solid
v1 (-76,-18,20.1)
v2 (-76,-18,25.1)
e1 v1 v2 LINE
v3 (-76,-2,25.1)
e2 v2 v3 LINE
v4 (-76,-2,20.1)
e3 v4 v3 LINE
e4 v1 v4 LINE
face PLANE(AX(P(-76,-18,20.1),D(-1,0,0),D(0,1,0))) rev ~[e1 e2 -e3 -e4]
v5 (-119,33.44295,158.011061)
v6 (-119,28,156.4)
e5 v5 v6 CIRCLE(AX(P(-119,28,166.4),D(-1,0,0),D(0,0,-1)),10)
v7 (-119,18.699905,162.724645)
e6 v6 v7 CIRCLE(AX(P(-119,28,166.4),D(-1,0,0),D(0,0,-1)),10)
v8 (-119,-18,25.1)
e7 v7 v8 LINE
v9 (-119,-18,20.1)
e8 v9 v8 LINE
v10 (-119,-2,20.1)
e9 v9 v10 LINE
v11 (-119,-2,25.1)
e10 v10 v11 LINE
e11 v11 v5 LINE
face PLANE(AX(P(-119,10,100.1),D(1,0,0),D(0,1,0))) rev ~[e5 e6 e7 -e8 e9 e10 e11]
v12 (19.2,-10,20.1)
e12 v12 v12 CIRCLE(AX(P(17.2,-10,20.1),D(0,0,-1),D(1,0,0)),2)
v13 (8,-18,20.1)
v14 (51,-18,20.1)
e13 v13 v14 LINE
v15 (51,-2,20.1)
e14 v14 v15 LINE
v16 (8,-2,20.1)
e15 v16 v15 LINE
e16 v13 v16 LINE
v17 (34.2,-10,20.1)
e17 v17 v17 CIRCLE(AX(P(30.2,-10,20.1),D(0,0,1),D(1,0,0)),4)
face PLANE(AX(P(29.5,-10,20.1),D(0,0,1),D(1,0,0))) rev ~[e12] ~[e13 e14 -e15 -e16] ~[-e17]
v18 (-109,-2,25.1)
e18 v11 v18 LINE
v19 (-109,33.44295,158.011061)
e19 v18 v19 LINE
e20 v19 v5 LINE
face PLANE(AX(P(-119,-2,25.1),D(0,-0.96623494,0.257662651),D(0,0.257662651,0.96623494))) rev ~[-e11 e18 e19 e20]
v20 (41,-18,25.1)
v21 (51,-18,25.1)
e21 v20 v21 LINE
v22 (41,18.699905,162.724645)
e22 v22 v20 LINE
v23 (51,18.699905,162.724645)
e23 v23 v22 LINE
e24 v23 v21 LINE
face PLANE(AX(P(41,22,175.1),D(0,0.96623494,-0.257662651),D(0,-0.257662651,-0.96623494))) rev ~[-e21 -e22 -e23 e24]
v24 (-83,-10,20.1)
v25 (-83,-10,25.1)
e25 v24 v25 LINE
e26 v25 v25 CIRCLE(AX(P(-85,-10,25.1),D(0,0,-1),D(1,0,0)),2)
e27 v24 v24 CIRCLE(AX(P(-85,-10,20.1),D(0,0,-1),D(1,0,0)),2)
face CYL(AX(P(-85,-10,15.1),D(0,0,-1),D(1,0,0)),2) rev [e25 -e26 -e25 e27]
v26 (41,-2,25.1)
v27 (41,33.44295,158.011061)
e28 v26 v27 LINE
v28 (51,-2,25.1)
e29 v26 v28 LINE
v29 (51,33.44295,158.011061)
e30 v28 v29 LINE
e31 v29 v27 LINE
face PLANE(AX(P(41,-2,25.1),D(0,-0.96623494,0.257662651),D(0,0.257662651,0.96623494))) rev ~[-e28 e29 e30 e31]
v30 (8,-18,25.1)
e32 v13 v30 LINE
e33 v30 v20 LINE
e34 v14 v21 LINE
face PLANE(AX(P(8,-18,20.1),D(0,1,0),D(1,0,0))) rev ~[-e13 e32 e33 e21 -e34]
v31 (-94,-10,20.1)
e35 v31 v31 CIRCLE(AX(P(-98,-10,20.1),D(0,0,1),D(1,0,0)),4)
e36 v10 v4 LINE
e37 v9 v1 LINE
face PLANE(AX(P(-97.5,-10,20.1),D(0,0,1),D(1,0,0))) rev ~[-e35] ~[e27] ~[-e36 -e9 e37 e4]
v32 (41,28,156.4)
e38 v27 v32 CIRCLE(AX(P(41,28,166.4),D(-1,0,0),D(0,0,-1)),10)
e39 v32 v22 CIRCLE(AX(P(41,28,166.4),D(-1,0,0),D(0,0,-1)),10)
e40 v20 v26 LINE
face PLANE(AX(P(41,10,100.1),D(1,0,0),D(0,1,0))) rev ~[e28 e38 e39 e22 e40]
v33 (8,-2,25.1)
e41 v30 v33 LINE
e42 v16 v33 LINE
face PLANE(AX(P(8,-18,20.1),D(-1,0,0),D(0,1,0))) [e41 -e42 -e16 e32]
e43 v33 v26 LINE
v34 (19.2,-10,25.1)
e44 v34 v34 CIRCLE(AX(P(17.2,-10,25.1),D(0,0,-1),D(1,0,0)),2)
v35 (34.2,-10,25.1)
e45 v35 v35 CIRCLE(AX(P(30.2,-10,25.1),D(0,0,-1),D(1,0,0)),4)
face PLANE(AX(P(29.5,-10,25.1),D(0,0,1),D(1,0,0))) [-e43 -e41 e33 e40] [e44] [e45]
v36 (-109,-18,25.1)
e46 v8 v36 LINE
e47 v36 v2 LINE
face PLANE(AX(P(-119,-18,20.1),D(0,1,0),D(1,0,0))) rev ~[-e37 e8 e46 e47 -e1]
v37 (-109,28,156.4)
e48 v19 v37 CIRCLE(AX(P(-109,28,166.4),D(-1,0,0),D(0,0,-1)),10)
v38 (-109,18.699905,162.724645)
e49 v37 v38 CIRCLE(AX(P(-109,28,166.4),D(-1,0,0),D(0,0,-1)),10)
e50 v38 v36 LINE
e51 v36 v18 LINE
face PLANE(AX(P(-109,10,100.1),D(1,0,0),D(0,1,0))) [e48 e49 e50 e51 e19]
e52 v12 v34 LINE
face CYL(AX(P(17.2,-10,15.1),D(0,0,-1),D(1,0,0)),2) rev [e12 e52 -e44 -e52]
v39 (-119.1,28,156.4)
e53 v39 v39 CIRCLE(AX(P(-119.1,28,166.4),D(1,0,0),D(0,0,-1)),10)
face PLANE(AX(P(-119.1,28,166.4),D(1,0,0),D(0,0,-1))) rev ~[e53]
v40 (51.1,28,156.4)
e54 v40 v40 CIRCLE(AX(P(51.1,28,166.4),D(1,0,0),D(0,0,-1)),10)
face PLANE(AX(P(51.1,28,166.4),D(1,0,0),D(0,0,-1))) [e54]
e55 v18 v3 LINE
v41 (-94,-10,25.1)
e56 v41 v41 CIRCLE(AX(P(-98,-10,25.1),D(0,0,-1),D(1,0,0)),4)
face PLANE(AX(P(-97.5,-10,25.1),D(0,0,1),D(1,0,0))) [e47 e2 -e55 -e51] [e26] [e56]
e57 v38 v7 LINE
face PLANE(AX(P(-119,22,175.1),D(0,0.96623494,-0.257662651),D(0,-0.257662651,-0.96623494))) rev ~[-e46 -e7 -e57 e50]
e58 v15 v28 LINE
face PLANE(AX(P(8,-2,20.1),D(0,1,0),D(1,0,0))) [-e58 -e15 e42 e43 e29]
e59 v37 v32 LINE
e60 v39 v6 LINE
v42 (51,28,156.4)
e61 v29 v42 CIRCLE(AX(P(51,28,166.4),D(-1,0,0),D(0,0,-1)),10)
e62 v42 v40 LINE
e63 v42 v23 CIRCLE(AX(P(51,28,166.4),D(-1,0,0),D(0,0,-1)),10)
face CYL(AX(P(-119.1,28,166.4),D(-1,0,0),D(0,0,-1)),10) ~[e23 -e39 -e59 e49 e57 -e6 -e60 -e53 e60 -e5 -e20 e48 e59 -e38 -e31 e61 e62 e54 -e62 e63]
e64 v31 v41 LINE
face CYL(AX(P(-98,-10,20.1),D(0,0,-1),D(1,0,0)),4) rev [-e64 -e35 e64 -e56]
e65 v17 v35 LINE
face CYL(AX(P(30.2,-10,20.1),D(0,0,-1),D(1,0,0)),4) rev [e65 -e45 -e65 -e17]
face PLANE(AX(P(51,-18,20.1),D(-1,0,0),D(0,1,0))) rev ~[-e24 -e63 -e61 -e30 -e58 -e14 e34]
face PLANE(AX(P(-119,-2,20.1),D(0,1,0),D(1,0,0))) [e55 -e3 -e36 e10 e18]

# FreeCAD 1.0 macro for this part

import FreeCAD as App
import Part
import Sketcher
from FreeCAD import Vector
Q = App.Units.Quantity


def edges_at(feature, points):
    """Names of the edges that pass closest to the given points."""
    edges = feature.Shape.Edges
    near = lambda p: min(range(len(edges)), key=lambda i: edges[i].distToShape(Part.Vertex(*p))[0])
    return sorted({f"Edge{near(p) + 1}" for p in points})


def add_polygon(sketch, points):
    """Adds a closed chain of lines whose ends are joined by coincident constraints."""
    first, n = sketch.GeometryCount, len(points)
    for a, b in zip(points, points[1:] + points[:1]):
        sketch.addGeometry(Part.LineSegment(App.Vector(*a, 0), App.Vector(*b, 0)), False)
    for i in range(n):
        sketch.addConstraint(Sketcher.Constraint("Coincident", first + i, 2, first + (i + 1) % n, 1))

doc = App.newDocument("Part")
body = doc.addObject("PartDesign::Body", "Body")

# Sketch on YZ plane
sketch1 = doc.addObject("Sketcher::SketchObject", "Sketch")
body.addObject(sketch1)
sketch1.AttachmentSupport = (doc.YZ_Plane, [""])
sketch1.MapMode = "FlatFace"
sketch1.AttachmentOffset = App.Placement(Vector(0, 0, -119.1), App.Rotation())
sketch1.addGeometry(Part.Circle(Vector(28, 146, 0), Vector(0, 0, 1), 10), False)
sketch1.addConstraint(Sketcher.Constraint("Diameter", 0, Q("20 mm")))
sketch1.addConstraint(Sketcher.Constraint("DistanceX", -1, 1, 0, 3, Q("28 mm")))
sketch1.addConstraint(Sketcher.Constraint("DistanceY", -1, 1, 0, 3, Q("146.3 mm")))
pad1 = doc.addObject("PartDesign::Pad", "Pad")
body.addObject(pad1)
pad1.Profile = sketch1
pad1.Length = 170.2
body2 = doc.addObject("PartDesign::Body", "Body001")

# Sketch on XY plane
sketch2 = doc.addObject("Sketcher::SketchObject", "Sketch001")
body2.addObject(sketch2)
sketch2.AttachmentSupport = (doc.getObject("XY_Plane001"), [""])
sketch2.MapMode = "FlatFace"
add_polygon(sketch2, [(0, 0), (16, 0), (56, 150), (40, 150)])  # lines 0-3
sketch2.addConstraint(Sketcher.Constraint("Horizontal", 0))
sketch2.addConstraint(Sketcher.Constraint("Horizontal", 2))
sketch2.addConstraint(Sketcher.Constraint("Coincident", 3, 2, -1, 1))
sketch2.addConstraint(Sketcher.Constraint("Parallel", 1, 3))
sketch2.addConstraint(Sketcher.Constraint("DistanceX", 0, 1, 0, 2, Q("16 mm")))
sketch2.addConstraint(Sketcher.Constraint("DistanceX", -1, 1, 1, 2, Q("56 mm")))
sketch2.addConstraint(Sketcher.Constraint("DistanceY", -1, 1, 1, 2, Q("150 mm")))
pad2 = doc.addObject("PartDesign::Pad", "Pad001")
body2.addObject(pad2)
pad2.Profile = sketch2
pad2.Length = 10
doc.recompute()

fillet = doc.addObject("PartDesign::Fillet", "Fillet")
body2.addObject(fillet)
fillet.Base = (pad2, edges_at(pad2, [(56, 150, 5), (40, 150, 5)]))
fillet.Radius = 7.72
body3 = doc.addObject("PartDesign::Body", "Body002")
doc.recompute()

body2.Placement = App.Placement(Vector(0, 0, 0), App.Rotation(Vector(1, 0, 0), 90))
boolean = doc.addObject("PartDesign::Boolean", "Boolean")
body3.addObject(boolean)
boolean.Type = "Fuse"
boolean.addObjects([body2])
body4 = doc.addObject("PartDesign::Body", "Body003")
doc.recompute()

body3.Placement = App.Placement(Vector(-119, -18, 5), App.Rotation(Vector(0, 0, 1), 90))
boolean2 = doc.addObject("PartDesign::Boolean", "Boolean001")
body4.addObject(boolean2)
boolean2.Type = "Fuse"
boolean2.addObjects([body3])
body5 = doc.addObject("PartDesign::Body", "Body004")

# Sketch on XY plane
sketch3 = doc.addObject("Sketcher::SketchObject", "Sketch002")
body5.addObject(sketch3)
sketch3.AttachmentSupport = (doc.getObject("XY_Plane004"), [""])
sketch3.MapMode = "FlatFace"
add_polygon(sketch3, [(0, 0), (16, 0), (56, 150), (40, 150)])  # lines 0-3
sketch3.addConstraint(Sketcher.Constraint("Horizontal", 0))
sketch3.addConstraint(Sketcher.Constraint("Horizontal", 2))
sketch3.addConstraint(Sketcher.Constraint("Coincident", 3, 2, -1, 1))
sketch3.addConstraint(Sketcher.Constraint("Parallel", 1, 3))
sketch3.addConstraint(Sketcher.Constraint("DistanceX", 0, 1, 0, 2, Q("16 mm")))
sketch3.addConstraint(Sketcher.Constraint("DistanceX", -1, 1, 1, 2, Q("56 mm")))
sketch3.addConstraint(Sketcher.Constraint("DistanceY", -1, 1, 1, 2, Q("150 mm")))
pad3 = doc.addObject("PartDesign::Pad", "Pad002")
body5.addObject(pad3)
pad3.Profile = sketch3
pad3.Length = 10
doc.recompute()

fillet2 = doc.addObject("PartDesign::Fillet", "Fillet001")
body5.addObject(fillet2)
fillet2.Base = (pad3, edges_at(pad3, [(56, 150, 5), (40, 150, 5)]))
fillet2.Radius = 7.72
body6 = doc.addObject("PartDesign::Body", "Body005")
doc.recompute()

body5.Placement = App.Placement(Vector(0, 0, 0), App.Rotation(Vector(1, 0, 0), 90))
boolean3 = doc.addObject("PartDesign::Boolean", "Boolean002")
body6.addObject(boolean3)
boolean3.Type = "Fuse"
boolean3.addObjects([body5])
body7 = doc.addObject("PartDesign::Body", "Body006")
doc.recompute()

body6.Placement = App.Placement(Vector(41, -18, 5), App.Rotation(Vector(0, 0, 1), 90))
boolean4 = doc.addObject("PartDesign::Boolean", "Boolean003")
body7.addObject(boolean4)
boolean4.Type = "Fuse"
boolean4.addObjects([body6])
doc.recompute()

boolean5 = doc.addObject("PartDesign::Boolean", "Boolean004")
body7.addObject(boolean5)
boolean5.Type = "Fuse"
boolean5.addObjects([body])
doc.recompute()

boolean6 = doc.addObject("PartDesign::Boolean", "Boolean005")
body7.addObject(boolean6)
boolean6.Type = "Fuse"
boolean6.addObjects([body4])
body8 = doc.addObject("PartDesign::Body", "Body007")

# Sketch on XY plane
sketch4 = doc.addObject("Sketcher::SketchObject", "Sketch003")
body8.addObject(sketch4)
sketch4.AttachmentSupport = (doc.getObject("XY_Plane007"), [""])
sketch4.MapMode = "FlatFace"
sketch4.AttachmentOffset = App.Placement(Vector(0, 0, -5), App.Rotation())
sketch4.addGeometry(Part.Circle(Vector(17.2, -10, 0), Vector(0, 0, 1), 2), False)
sketch4.addConstraint(Sketcher.Constraint("Diameter", 0, Q("4 mm")))
sketch4.addConstraint(Sketcher.Constraint("DistanceY", 0, 3, -1, 1, Q("10 mm")))
sketch4.addConstraint(Sketcher.Constraint("DistanceX", -1, 1, 0, 3, Q("17.2 mm")))
pad4 = doc.addObject("PartDesign::Pad", "Pad003")
body8.addObject(pad4)
pad4.Profile = sketch4
pad4.Length = 42
body9 = doc.addObject("PartDesign::Body", "Body008")

# Sketch on XY plane
sketch5 = doc.addObject("Sketcher::SketchObject", "Sketch004")
body9.addObject(sketch5)
sketch5.AttachmentSupport = (doc.getObject("XY_Plane008"), [""])
sketch5.MapMode = "FlatFace"
sketch5.addGeometry(Part.Circle(Vector(30.2, -10, 0), Vector(0, 0, 1), 4), False)
sketch5.addConstraint(Sketcher.Constraint("Diameter", 0, Q("8 mm")))
sketch5.addConstraint(Sketcher.Constraint("DistanceY", 0, 3, -1, 1, Q("10 mm")))
sketch5.addConstraint(Sketcher.Constraint("DistanceX", -1, 1, 0, 3, Q("30.2 mm")))
pad5 = doc.addObject("PartDesign::Pad", "Pad004")
body9.addObject(pad5)
pad5.Profile = sketch5
pad5.Length = 32
body10 = doc.addObject("PartDesign::Body", "Body009")

# Sketch on XY plane
sketch6 = doc.addObject("Sketcher::SketchObject", "Sketch005")
body10.addObject(sketch6)
sketch6.AttachmentSupport = (doc.getObject("XY_Plane009"), [""])
sketch6.MapMode = "FlatFace"
add_polygon(sketch6, [(8, -2), (8, -18), (51, -18), (51, -2)])  # lines 0-3
sketch6.addConstraint(Sketcher.Constraint("Vertical", 0))
sketch6.addConstraint(Sketcher.Constraint("Horizontal", 1))
sketch6.addConstraint(Sketcher.Constraint("Vertical", 2))
sketch6.addConstraint(Sketcher.Constraint("Horizontal", 3))
sketch6.addConstraint(Sketcher.Constraint("DistanceX", 1, 1, 1, 2, Q("43 mm")))
sketch6.addConstraint(Sketcher.Constraint("DistanceY", 0, 2, 0, 1, Q("16 mm")))
sketch6.addConstraint(Sketcher.Constraint("DistanceX", -1, 1, 0, 2, Q("8 mm")))
sketch6.addConstraint(Sketcher.Constraint("DistanceY", 0, 2, -1, 1, Q("18 mm")))
pad6 = doc.addObject("PartDesign::Pad", "Pad005")
body10.addObject(pad6)
pad6.Profile = sketch6
pad6.Length = 5
doc.recompute()

boolean7 = doc.addObject("PartDesign::Boolean", "Boolean006")
body10.addObject(boolean7)
boolean7.Type = "Cut"
boolean7.addObjects([body9])
doc.recompute()

boolean8 = doc.addObject("PartDesign::Boolean", "Boolean007")
body10.addObject(boolean8)
boolean8.Type = "Cut"
boolean8.addObjects([body8])
body11 = doc.addObject("PartDesign::Body", "Body010")

# Sketch on XY plane
sketch7 = doc.addObject("Sketcher::SketchObject", "Sketch006")
body11.addObject(sketch7)
sketch7.AttachmentSupport = (doc.getObject("XY_Plane010"), [""])
sketch7.MapMode = "FlatFace"
sketch7.AttachmentOffset = App.Placement(Vector(0, 0, -5), App.Rotation())
sketch7.addGeometry(Part.Circle(Vector(-85, -10, 0), Vector(0, 0, 1), 2), False)
sketch7.addConstraint(Sketcher.Constraint("Diameter", 0, Q("4 mm")))
sketch7.addConstraint(Sketcher.Constraint("DistanceX", 0, 3, -1, 1, Q("85 mm")))
sketch7.addConstraint(Sketcher.Constraint("DistanceY", 0, 3, -1, 1, Q("10 mm")))
pad7 = doc.addObject("PartDesign::Pad", "Pad006")
body11.addObject(pad7)
pad7.Profile = sketch7
pad7.Length = 42
body12 = doc.addObject("PartDesign::Body", "Body011")

# Sketch on XY plane
sketch8 = doc.addObject("Sketcher::SketchObject", "Sketch007")
body12.addObject(sketch8)
sketch8.AttachmentSupport = (doc.getObject("XY_Plane011"), [""])
sketch8.MapMode = "FlatFace"
sketch8.addGeometry(Part.Circle(Vector(-98, -10, 0), Vector(0, 0, 1), 4), False)
sketch8.addConstraint(Sketcher.Constraint("Diameter", 0, Q("8 mm")))
sketch8.addConstraint(Sketcher.Constraint("DistanceX", 0, 3, -1, 1, Q("98 mm")))
sketch8.addConstraint(Sketcher.Constraint("DistanceY", 0, 3, -1, 1, Q("10 mm")))
pad8 = doc.addObject("PartDesign::Pad", "Pad007")
body12.addObject(pad8)
pad8.Profile = sketch8
pad8.Length = 32
body13 = doc.addObject("PartDesign::Body", "Body012")

# Sketch on XY plane
sketch9 = doc.addObject("Sketcher::SketchObject", "Sketch008")
body13.addObject(sketch9)
sketch9.AttachmentSupport = (doc.getObject("XY_Plane012"), [""])
sketch9.MapMode = "FlatFace"
add_polygon(sketch9, [(-119, -2), (-119, -18), (-76, -18), (-76, -2)])  # lines 0-3
sketch9.addConstraint(Sketcher.Constraint("Vertical", 0))
sketch9.addConstraint(Sketcher.Constraint("Horizontal", 1))
sketch9.addConstraint(Sketcher.Constraint("Vertical", 2))
sketch9.addConstraint(Sketcher.Constraint("Horizontal", 3))
sketch9.addConstraint(Sketcher.Constraint("DistanceX", 1, 1, 1, 2, Q("43 mm")))
sketch9.addConstraint(Sketcher.Constraint("DistanceY", 0, 2, 0, 1, Q("16 mm")))
sketch9.addConstraint(Sketcher.Constraint("DistanceX", 0, 2, -1, 1, Q("119 mm")))
sketch9.addConstraint(Sketcher.Constraint("DistanceY", 0, 2, -1, 1, Q("18 mm")))
pad9 = doc.addObject("PartDesign::Pad", "Pad008")
body13.addObject(pad9)
pad9.Profile = sketch9
pad9.Length = 5
doc.recompute()

boolean9 = doc.addObject("PartDesign::Boolean", "Boolean008")
body13.addObject(boolean9)
boolean9.Type = "Cut"
boolean9.addObjects([body12])
doc.recompute()

boolean10 = doc.addObject("PartDesign::Boolean", "Boolean009")
body13.addObject(boolean10)
boolean10.Type = "Cut"
boolean10.addObjects([body11])
doc.recompute()

boolean11 = doc.addObject("PartDesign::Boolean", "Boolean010")
body13.addObject(boolean11)
boolean11.Type = "Fuse"
boolean11.addObjects([body7])
doc.recompute()

boolean12 = doc.addObject("PartDesign::Boolean", "Boolean011")
body13.addObject(boolean12)
boolean12.Type = "Fuse"
boolean12.addObjects([body10])
body14 = doc.addObject("PartDesign::Body", "Body013")
doc.recompute()

body13.Placement = App.Placement(Vector(0, 0, 20.1), App.Rotation(Vector(0, 0, 1), 0))
boolean13 = doc.addObject("PartDesign::Boolean", "Boolean012")
body14.addObject(boolean13)
boolean13.Type = "Fuse"
boolean13.addObjects([body13])

doc.recompute()
